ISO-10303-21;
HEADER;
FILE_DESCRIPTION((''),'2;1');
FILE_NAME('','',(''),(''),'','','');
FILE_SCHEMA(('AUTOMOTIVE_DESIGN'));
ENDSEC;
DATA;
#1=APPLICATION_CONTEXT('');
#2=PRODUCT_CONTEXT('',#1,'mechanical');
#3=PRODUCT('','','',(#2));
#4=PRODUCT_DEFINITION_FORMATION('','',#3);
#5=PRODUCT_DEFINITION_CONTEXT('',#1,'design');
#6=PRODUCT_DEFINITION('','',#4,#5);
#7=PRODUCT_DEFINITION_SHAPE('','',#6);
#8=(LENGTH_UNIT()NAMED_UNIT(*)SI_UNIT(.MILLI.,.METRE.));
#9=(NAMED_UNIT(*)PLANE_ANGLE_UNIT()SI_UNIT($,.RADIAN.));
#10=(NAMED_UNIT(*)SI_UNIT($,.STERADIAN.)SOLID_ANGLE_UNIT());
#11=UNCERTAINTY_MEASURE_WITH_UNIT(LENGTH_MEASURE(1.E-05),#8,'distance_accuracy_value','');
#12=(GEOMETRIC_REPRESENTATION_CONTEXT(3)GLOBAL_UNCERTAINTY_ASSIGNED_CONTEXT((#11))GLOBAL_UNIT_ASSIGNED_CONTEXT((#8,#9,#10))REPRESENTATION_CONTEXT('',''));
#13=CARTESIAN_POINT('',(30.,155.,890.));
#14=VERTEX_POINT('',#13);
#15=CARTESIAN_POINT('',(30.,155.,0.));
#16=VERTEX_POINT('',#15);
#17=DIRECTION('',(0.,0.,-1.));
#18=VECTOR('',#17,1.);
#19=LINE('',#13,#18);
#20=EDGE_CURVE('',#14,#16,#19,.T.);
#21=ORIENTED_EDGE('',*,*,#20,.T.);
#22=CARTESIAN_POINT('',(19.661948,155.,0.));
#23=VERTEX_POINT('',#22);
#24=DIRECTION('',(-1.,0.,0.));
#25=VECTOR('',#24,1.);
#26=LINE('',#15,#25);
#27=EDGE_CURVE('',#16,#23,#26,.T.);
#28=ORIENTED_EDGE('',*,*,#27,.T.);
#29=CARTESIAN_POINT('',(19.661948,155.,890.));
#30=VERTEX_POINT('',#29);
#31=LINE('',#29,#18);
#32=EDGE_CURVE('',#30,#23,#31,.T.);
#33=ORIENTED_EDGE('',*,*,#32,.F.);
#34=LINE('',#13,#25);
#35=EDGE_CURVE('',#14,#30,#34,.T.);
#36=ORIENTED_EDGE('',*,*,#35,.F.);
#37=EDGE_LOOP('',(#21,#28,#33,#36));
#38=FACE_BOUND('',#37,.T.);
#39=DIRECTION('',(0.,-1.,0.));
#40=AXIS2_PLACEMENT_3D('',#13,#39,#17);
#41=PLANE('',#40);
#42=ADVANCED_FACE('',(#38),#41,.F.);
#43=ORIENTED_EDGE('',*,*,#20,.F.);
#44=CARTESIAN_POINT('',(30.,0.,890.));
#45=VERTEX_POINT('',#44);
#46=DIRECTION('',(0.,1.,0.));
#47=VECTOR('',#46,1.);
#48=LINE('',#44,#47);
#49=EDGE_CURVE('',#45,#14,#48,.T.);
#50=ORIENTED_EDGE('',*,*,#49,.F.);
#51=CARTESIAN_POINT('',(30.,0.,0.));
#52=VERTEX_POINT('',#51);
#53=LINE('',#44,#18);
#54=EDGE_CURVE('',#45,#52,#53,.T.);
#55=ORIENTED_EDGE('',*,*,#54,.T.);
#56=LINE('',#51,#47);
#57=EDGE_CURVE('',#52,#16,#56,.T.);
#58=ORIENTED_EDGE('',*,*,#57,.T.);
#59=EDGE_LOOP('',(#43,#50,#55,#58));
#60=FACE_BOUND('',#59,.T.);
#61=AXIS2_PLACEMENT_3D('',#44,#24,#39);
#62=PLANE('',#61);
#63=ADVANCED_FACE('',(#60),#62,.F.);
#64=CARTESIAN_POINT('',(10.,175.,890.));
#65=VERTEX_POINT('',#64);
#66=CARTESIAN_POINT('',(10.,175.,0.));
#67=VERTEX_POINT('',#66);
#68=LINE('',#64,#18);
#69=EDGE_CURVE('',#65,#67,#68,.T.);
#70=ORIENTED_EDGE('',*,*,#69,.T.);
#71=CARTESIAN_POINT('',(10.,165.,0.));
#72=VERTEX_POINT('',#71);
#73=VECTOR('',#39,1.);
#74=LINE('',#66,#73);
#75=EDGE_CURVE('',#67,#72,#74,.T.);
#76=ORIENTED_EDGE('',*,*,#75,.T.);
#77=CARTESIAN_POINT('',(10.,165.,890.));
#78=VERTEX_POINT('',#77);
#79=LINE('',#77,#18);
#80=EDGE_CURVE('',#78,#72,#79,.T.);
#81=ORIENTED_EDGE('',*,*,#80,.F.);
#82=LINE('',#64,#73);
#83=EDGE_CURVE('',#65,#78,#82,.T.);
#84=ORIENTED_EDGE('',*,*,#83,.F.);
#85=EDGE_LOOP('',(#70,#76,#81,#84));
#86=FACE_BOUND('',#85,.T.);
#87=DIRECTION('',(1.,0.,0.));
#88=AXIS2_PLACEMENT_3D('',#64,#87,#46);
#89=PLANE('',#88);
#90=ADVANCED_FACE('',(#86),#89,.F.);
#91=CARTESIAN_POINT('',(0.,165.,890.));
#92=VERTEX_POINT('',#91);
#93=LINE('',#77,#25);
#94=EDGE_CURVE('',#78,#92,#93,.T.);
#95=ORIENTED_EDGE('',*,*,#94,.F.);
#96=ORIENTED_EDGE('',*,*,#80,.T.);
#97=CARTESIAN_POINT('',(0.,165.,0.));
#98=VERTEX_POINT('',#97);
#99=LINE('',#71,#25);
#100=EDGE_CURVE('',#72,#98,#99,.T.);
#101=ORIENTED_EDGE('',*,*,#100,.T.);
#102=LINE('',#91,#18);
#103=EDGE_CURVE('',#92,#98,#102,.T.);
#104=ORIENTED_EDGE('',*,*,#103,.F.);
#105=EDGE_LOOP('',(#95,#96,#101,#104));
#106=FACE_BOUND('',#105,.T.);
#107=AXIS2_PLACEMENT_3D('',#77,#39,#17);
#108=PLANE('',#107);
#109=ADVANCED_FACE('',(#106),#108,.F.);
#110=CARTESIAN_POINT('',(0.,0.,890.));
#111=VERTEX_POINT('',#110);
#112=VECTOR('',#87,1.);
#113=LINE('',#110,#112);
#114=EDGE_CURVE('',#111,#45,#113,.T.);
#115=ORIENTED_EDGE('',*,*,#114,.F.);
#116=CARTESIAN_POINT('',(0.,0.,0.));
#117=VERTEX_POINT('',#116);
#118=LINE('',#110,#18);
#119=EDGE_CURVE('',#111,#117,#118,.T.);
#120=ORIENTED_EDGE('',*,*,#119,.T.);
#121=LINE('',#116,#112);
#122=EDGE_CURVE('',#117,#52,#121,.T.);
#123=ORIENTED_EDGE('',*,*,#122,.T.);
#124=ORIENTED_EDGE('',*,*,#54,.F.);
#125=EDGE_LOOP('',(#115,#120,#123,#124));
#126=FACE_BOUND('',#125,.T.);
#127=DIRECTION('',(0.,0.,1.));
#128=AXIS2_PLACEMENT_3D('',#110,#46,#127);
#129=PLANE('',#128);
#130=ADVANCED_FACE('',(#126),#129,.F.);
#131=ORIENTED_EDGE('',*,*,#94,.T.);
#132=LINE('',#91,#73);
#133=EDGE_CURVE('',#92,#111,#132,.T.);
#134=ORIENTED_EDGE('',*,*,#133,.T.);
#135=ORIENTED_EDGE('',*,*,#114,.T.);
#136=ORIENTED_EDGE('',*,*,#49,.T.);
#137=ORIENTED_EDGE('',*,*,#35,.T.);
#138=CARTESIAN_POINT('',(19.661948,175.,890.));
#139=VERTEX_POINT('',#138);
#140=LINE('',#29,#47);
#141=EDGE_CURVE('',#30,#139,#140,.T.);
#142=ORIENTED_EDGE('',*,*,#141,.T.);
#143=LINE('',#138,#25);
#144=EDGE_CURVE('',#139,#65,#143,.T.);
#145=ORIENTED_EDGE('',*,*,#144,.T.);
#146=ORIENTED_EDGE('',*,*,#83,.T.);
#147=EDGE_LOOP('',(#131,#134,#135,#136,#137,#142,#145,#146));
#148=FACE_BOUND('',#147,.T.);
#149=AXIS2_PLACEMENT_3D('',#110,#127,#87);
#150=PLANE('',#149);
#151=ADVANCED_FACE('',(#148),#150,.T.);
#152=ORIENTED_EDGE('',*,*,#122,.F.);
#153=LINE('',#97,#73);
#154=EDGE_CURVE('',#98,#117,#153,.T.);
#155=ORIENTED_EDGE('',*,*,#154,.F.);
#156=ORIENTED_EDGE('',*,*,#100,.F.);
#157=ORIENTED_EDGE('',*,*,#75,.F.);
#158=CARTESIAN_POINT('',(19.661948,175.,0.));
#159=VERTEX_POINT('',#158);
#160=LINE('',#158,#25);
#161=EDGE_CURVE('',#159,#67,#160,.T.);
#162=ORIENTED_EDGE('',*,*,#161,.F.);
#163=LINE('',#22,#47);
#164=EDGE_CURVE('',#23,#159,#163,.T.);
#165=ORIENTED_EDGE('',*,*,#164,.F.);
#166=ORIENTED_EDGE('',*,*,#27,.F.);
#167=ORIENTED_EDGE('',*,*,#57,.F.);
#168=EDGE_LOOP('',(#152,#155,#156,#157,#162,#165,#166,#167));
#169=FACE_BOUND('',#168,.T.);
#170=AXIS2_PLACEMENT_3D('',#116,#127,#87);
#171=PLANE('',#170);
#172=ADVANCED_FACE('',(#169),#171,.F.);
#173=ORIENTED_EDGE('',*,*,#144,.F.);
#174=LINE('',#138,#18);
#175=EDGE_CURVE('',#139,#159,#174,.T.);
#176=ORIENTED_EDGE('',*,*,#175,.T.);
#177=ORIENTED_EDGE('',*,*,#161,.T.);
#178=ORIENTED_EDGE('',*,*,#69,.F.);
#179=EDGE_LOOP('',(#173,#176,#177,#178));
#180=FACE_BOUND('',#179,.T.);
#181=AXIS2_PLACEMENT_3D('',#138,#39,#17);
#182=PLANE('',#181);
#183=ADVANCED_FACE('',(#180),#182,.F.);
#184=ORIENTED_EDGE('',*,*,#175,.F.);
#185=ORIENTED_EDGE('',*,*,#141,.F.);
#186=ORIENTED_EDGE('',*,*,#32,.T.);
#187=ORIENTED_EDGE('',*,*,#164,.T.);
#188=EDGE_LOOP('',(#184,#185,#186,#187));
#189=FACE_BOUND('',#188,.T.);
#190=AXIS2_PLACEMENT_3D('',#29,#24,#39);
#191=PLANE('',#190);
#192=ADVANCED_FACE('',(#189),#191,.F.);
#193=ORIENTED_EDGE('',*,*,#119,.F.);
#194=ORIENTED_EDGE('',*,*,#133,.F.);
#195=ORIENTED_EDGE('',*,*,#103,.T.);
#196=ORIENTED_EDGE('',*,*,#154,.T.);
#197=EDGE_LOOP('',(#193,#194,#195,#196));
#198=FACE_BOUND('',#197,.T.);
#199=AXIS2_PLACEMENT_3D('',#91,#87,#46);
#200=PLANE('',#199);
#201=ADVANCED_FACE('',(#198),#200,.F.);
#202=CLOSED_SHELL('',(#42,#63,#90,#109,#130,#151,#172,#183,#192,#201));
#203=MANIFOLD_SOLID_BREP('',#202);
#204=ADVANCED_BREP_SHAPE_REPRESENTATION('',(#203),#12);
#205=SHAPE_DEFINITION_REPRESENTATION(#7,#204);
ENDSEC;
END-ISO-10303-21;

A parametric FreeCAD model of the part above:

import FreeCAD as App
import Part
import Sketcher


def add_polygon(sketch, points):
    """Adds a closed chain of lines whose ends are joined by coincident constraints."""
    first, n = sketch.GeometryCount, len(points)
    for a, b in zip(points, points[1:] + points[:1]):
        sketch.addGeometry(Part.LineSegment(App.Vector(*a, 0), App.Vector(*b, 0)), False)
    for i in range(n):
        sketch.addConstraint(Sketcher.Constraint("Coincident", first + i, 2, first + (i + 1) % n, 1))

doc = App.newDocument("Part")
params = doc.addObject("Spreadsheet::Sheet", "Params")
for row, (alias, value) in enumerate([
    ("sketch1_width", "30 mm"),
    ("sketch1_width2", "10 mm"),
    ("sketch1_height", "155 mm"),
    ("sketch1_height2", "20 mm"),
    ("pad1_length", "890 mm"),
], start=1):
    params.set(f"A{row}", alias)
    params.set(f"B{row}", "=" + value)
    params.setAlias(f"B{row}", alias)

body = doc.addObject("PartDesign::Body", "Body")

sketch1 = body.newObject("Sketcher::SketchObject", "Sketch")
sketch1.AttachmentSupport = (doc.getObject("XY_Plane"), [""])
sketch1.MapMode = "FlatFace"
add_polygon(sketch1, [(0, 0), (30, 0), (30, 155), (19.661948, 155), (19.661948, 175), (10, 175), (10, 165), (0, 165)])
sketch1.addConstraint(Sketcher.Constraint("Horizontal", 0))
sketch1.addConstraint(Sketcher.Constraint("Vertical", 1))
sketch1.addConstraint(Sketcher.Constraint("Horizontal", 2))
sketch1.addConstraint(Sketcher.Constraint("Vertical", 3))
sketch1.addConstraint(Sketcher.Constraint("Horizontal", 4))
sketch1.addConstraint(Sketcher.Constraint("Vertical", 5))
sketch1.addConstraint(Sketcher.Constraint("Horizontal", 6))
sketch1.addConstraint(Sketcher.Constraint("Vertical", 7))
sketch1.addConstraint(Sketcher.Constraint("Coincident", 7, 2, -1, 1))
sketch1.addConstraint(Sketcher.Constraint("Equal", 6, 5))
sketch1.addConstraint(Sketcher.Constraint("DistanceX", 0, 1, 0, 2, 30.0))
sketch1.addConstraint(Sketcher.Constraint("DistanceX", 6, 2, 6, 1, 10.0))
sketch1.addConstraint(Sketcher.Constraint("DistanceY", 1, 1, 1, 2, 155.0))
sketch1.addConstraint(Sketcher.Constraint("DistanceY", 3, 1, 3, 2, 20.0))
sketch1.addConstraint(Sketcher.Constraint("DistanceX", 2, 2, 2, 1, 10.338052))
sketch1.setExpression("Constraints[18]", "Params.sketch1_width")
sketch1.setExpression("Constraints[19]", "Params.sketch1_width2")
sketch1.setExpression("Constraints[20]", "Params.sketch1_height")
sketch1.setExpression("Constraints[21]", "Params.sketch1_height2")
pad1 = body.newObject("PartDesign::Pad", "Pad")
pad1.Profile = sketch1
pad1.setExpression("Length", "Params.pad1_length")

doc.recompute()
